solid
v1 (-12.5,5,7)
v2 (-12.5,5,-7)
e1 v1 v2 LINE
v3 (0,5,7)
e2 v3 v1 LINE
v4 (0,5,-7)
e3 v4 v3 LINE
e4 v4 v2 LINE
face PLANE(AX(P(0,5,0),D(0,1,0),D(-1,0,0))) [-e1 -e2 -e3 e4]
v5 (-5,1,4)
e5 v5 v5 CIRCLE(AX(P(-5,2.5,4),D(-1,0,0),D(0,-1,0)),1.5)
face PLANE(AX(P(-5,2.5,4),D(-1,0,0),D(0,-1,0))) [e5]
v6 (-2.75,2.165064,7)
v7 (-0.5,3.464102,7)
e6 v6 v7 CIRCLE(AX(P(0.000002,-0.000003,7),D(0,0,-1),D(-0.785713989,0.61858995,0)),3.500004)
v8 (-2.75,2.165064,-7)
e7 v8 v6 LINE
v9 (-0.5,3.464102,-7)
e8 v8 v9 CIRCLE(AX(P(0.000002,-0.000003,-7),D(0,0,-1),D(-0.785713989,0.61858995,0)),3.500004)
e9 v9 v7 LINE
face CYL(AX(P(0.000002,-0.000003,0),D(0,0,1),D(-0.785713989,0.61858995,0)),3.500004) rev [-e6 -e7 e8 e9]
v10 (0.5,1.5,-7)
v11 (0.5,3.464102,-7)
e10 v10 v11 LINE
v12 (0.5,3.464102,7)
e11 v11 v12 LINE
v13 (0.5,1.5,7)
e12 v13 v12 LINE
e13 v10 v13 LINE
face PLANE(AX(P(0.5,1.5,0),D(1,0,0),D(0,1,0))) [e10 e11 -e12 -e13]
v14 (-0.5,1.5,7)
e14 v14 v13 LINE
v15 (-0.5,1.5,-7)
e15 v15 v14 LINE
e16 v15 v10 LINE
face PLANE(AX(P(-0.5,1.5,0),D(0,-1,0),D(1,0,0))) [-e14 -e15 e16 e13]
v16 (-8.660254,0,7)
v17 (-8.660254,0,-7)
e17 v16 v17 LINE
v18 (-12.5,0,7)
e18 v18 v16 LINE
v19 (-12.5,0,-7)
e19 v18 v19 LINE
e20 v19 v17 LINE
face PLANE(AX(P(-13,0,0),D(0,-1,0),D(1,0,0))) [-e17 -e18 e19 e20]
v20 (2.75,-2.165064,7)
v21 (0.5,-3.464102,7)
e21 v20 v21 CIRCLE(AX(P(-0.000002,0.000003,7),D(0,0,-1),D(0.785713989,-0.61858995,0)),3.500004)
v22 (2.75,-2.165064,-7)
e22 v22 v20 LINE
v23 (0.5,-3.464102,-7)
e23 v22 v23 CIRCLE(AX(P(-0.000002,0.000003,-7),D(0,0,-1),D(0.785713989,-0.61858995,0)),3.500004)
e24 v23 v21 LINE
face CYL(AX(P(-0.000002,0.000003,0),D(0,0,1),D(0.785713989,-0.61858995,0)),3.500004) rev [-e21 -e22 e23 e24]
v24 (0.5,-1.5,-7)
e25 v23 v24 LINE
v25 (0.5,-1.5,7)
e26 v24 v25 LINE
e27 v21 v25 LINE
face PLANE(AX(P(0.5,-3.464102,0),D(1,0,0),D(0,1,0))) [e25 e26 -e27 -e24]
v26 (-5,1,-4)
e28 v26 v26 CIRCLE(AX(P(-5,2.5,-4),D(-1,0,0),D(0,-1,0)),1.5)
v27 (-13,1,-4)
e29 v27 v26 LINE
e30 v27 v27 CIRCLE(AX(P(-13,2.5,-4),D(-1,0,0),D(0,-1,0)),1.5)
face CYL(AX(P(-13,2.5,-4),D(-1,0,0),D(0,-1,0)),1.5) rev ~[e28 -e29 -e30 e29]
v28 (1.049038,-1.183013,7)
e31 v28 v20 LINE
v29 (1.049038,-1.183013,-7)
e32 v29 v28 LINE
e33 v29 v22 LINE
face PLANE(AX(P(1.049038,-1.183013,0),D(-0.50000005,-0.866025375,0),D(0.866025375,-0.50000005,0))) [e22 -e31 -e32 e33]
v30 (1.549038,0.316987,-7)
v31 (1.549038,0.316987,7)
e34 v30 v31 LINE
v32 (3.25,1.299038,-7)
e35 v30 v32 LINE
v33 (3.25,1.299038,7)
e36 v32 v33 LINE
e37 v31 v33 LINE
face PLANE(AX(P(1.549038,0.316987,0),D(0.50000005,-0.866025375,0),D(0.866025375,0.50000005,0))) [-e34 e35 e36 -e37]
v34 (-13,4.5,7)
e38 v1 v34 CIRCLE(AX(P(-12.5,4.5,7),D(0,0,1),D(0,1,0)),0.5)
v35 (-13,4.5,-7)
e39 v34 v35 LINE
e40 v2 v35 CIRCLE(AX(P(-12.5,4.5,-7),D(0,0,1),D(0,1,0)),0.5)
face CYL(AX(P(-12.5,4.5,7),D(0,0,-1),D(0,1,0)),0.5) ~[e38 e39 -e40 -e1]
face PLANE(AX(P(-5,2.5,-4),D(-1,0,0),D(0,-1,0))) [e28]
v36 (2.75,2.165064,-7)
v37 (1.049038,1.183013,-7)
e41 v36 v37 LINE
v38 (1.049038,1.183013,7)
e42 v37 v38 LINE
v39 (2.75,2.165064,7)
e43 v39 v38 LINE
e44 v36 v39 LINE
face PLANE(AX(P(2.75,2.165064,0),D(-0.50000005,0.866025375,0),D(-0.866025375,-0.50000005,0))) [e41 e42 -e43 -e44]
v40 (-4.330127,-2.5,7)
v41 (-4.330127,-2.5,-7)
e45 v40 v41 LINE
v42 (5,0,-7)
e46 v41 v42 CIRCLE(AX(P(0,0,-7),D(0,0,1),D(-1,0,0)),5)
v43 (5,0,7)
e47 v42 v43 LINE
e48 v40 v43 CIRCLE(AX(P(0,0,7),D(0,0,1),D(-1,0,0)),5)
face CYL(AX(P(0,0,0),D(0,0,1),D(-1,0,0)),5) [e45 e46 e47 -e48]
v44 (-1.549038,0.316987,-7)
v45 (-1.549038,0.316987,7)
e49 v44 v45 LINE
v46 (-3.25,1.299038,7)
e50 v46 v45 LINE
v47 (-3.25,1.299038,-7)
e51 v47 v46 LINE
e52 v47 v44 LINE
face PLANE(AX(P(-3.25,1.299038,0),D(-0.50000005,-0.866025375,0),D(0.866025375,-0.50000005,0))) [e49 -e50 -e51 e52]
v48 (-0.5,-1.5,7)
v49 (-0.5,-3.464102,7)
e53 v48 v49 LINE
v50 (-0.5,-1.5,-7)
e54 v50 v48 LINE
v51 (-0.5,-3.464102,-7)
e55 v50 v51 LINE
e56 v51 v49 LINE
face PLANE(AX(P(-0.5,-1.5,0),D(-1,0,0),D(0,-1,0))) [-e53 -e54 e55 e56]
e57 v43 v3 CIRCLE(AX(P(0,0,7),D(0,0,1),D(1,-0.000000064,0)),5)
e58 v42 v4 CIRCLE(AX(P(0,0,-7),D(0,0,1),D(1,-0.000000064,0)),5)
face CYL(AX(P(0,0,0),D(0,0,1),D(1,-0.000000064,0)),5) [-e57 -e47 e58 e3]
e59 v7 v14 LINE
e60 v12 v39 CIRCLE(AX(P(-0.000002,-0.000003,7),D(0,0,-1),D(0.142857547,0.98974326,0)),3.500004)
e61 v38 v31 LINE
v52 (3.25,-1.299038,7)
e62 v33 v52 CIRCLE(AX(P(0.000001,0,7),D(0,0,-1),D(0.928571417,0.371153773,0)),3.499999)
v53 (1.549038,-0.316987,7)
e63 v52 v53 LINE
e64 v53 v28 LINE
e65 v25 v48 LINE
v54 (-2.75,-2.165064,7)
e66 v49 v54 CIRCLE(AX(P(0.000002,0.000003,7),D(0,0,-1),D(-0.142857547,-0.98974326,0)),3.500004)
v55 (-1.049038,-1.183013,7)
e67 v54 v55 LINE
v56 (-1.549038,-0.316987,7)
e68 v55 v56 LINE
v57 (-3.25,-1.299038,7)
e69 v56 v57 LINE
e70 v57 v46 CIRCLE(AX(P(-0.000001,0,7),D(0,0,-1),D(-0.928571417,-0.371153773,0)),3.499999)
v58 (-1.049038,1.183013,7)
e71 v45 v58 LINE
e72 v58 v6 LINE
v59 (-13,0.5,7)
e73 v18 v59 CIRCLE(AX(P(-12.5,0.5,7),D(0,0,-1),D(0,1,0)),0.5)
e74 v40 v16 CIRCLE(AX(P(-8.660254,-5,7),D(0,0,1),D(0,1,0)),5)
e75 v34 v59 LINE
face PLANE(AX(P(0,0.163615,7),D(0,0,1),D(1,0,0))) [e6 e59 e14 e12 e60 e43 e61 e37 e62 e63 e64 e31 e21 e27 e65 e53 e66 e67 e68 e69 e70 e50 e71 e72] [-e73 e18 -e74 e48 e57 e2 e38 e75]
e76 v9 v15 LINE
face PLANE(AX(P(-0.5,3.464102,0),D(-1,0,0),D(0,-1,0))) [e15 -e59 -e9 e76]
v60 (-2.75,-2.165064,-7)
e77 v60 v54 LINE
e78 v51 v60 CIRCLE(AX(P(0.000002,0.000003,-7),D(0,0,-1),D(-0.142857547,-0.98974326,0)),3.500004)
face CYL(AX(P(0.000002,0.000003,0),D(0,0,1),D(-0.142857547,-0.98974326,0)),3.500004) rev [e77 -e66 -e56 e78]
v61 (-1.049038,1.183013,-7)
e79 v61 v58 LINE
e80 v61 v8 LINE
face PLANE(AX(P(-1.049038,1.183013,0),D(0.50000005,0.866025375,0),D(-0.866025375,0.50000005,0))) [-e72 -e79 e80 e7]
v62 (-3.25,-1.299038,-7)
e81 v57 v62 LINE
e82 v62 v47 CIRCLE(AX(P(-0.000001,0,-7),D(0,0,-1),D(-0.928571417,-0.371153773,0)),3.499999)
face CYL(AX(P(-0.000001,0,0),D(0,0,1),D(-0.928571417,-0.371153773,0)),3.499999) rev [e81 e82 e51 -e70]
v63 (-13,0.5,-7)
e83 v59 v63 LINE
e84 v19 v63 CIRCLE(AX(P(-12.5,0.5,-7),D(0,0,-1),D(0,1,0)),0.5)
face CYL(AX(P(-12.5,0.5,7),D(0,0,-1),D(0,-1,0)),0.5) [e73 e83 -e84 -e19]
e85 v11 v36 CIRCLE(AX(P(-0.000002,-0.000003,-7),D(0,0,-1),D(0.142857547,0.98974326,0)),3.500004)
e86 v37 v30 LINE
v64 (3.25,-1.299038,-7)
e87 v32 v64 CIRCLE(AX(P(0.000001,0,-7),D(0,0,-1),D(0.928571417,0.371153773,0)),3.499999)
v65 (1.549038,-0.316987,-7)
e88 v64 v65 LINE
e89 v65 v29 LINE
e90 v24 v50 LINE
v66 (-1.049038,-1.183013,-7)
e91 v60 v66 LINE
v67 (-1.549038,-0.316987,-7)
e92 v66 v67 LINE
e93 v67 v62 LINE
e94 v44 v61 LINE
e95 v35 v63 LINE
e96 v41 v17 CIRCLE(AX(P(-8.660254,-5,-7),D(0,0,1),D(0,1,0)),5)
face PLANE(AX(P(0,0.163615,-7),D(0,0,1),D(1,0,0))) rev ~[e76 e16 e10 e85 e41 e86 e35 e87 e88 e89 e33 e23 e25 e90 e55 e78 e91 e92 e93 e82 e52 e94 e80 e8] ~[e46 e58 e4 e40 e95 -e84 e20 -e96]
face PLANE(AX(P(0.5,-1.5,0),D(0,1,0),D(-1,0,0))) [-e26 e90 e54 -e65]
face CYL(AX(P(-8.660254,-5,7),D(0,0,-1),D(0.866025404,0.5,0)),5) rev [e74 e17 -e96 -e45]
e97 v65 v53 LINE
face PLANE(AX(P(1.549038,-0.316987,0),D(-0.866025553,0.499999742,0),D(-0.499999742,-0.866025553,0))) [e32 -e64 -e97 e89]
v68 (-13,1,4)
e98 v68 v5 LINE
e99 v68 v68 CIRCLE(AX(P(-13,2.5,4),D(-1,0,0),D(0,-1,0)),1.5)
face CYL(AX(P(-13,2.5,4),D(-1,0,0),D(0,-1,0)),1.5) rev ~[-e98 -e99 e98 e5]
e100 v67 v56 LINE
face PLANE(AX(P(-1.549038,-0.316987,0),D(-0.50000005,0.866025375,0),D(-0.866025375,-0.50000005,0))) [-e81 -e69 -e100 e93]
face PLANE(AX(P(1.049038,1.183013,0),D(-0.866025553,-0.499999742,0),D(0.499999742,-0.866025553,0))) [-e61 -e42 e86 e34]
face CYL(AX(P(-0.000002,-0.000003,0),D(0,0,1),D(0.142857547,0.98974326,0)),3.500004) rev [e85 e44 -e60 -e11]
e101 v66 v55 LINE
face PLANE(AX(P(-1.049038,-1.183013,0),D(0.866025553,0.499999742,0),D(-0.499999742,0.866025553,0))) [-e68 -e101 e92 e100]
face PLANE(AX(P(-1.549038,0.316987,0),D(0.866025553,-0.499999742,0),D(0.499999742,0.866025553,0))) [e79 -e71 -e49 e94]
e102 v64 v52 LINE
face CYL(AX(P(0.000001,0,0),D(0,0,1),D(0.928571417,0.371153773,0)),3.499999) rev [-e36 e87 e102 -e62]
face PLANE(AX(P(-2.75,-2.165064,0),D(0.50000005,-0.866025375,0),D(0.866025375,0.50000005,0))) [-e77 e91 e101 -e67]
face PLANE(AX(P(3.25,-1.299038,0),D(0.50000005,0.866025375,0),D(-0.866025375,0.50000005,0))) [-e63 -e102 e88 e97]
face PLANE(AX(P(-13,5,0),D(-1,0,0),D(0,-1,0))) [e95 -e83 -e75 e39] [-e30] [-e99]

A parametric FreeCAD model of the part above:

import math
import FreeCAD as App
import Part
import Sketcher
from FreeCAD import Vector
Q = App.Units.Quantity


def edges_at(feature, points):
    """Names of the edges that pass closest to the given points."""
    edges = feature.Shape.Edges
    near = lambda p: min(range(len(edges)), key=lambda i: edges[i].distToShape(Part.Vertex(*p))[0])
    return sorted({f"Edge{near(p) + 1}" for p in points})

doc = App.newDocument("Part")
body = doc.addObject("PartDesign::Body", "Body")

# Sketch on XY plane
sketch1 = doc.addObject("Sketcher::SketchObject", "Sketch")
body.addObject(sketch1)
sketch1.AttachmentSupport = (doc.XY_Plane, [""])
sketch1.MapMode = "FlatFace"
sketch1.addGeometry(Part.ArcOfCircle(Part.Circle(Vector(0, 0, 0), Vector(0, 0, 1), 5), math.radians(180), math.radians(360)), False)
sketch1.addGeometry(Part.ArcOfCircle(Part.Circle(Vector(0, 0, 0), Vector(0, 0, 1), 5), math.radians(-0.000004), math.radians(90.000004)), False)
sketch1.addGeometry(Part.LineSegment(Vector(0, 5, 0), Vector(-13, 5, 0)), False)
sketch1.addGeometry(Part.LineSegment(Vector(-13, 5, 0), Vector(-13, 0, 0)), False)
sketch1.addGeometry(Part.LineSegment(Vector(-13, 0, 0), Vector(-5, 0, 0)), False)
sketch1.addGeometry(Part.ArcOfCircle(Part.Circle(Vector(-0.000001, 0, 0), Vector(0, 0, 1), 3.499999), math.radians(158.213209), math.radians(201.786791)), False)
sketch1.addGeometry(Part.LineSegment(Vector(-3.25, 1.299038, 0), Vector(-1.549038, 0.316987, 0)), False)
sketch1.addGeometry(Part.LineSegment(Vector(-1.549038, 0.316987, 0), Vector(-1.049038, 1.183013, 0)), False)
sketch1.addGeometry(Part.LineSegment(Vector(-1.049038, 1.183013, 0), Vector(-2.75, 2.165064, 0)), False)
sketch1.addGeometry(Part.ArcOfCircle(Part.Circle(Vector(0.000002, -0.000003, 0), Vector(0, 0, 1), 3.500004), math.radians(98.213234), math.radians(141.786762)), False)
sketch1.addGeometry(Part.LineSegment(Vector(-0.5, 3.464102, 0), Vector(-0.5, 1.5, 0)), False)
sketch1.addGeometry(Part.LineSegment(Vector(-0.5, 1.5, 0), Vector(0.5, 1.5, 0)), False)
sketch1.addGeometry(Part.LineSegment(Vector(0.5, 1.5, 0), Vector(0.5, 3.464102, 0)), False)
sketch1.addGeometry(Part.ArcOfCircle(Part.Circle(Vector(-0.000002, -0.000003, 0), Vector(0, 0, 1), 3.500004), math.radians(38.213238), math.radians(81.786766)), False)
sketch1.addGeometry(Part.LineSegment(Vector(2.75, 2.165064, 0), Vector(1.049038, 1.183013, 0)), False)
sketch1.addGeometry(Part.LineSegment(Vector(1.049038, 1.183013, 0), Vector(1.549038, 0.316987, 0)), False)
sketch1.addGeometry(Part.LineSegment(Vector(1.549038, 0.316987, 0), Vector(3.25, 1.299038, 0)), False)
sketch1.addGeometry(Part.ArcOfCircle(Part.Circle(Vector(0.000001, 0, 0), Vector(0, 0, 1), 3.499999), math.radians(-21.786791), math.radians(21.786791)), False)
sketch1.addGeometry(Part.LineSegment(Vector(3.25, -1.299038, 0), Vector(1.549038, -0.316987, 0)), False)
sketch1.addGeometry(Part.LineSegment(Vector(1.549038, -0.316987, 0), Vector(1.049038, -1.183013, 0)), False)
sketch1.addGeometry(Part.LineSegment(Vector(1.049038, -1.183013, 0), Vector(2.75, -2.165064, 0)), False)
sketch1.addGeometry(Part.ArcOfCircle(Part.Circle(Vector(-0.000002, 0.000003, 0), Vector(0, 0, 1), 3.500004), math.radians(-81.786766), math.radians(-38.213238)), False)
sketch1.addGeometry(Part.LineSegment(Vector(0.5, -3.464102, 0), Vector(0.5, -1.5, 0)), False)
sketch1.addGeometry(Part.LineSegment(Vector(0.5, -1.5, 0), Vector(-0.5, -1.5, 0)), False)
sketch1.addGeometry(Part.LineSegment(Vector(-0.5, -1.5, 0), Vector(-0.5, -3.464102, 0)), False)
sketch1.addGeometry(Part.ArcOfCircle(Part.Circle(Vector(0.000002, 0.000003, 0), Vector(0, 0, 1), 3.500004), math.radians(-141.786762), math.radians(-98.213234)), False)
sketch1.addGeometry(Part.LineSegment(Vector(-2.75, -2.165064, 0), Vector(-1.049038, -1.183013, 0)), False)
sketch1.addGeometry(Part.LineSegment(Vector(-1.049038, -1.183013, 0), Vector(-1.549038, -0.316987, 0)), False)
sketch1.addGeometry(Part.LineSegment(Vector(-1.549038, -0.316987, 0), Vector(-3.25, -1.299038, 0)), False)
sketch1.addConstraint(Sketcher.Constraint("Tangent", 0, 2, 1, 1))
sketch1.addConstraint(Sketcher.Constraint("Tangent", 1, 2, 2, 1))
sketch1.addConstraint(Sketcher.Constraint("Coincident", 2, 2, 3, 1))
sketch1.addConstraint(Sketcher.Constraint("Coincident", 3, 2, 4, 1))
sketch1.addConstraint(Sketcher.Constraint("Coincident", 4, 2, 0, 1))
sketch1.addConstraint(Sketcher.Constraint("Coincident", 5, 1, 6, 1))
sketch1.addConstraint(Sketcher.Constraint("Coincident", 6, 2, 7, 1))
sketch1.addConstraint(Sketcher.Constraint("Coincident", 7, 2, 8, 1))
sketch1.addConstraint(Sketcher.Constraint("Coincident", 8, 2, 9, 2))
sketch1.addConstraint(Sketcher.Constraint("Coincident", 9, 1, 10, 1))
sketch1.addConstraint(Sketcher.Constraint("Coincident", 10, 2, 11, 1))
sketch1.addConstraint(Sketcher.Constraint("Coincident", 11, 2, 12, 1))
sketch1.addConstraint(Sketcher.Constraint("Coincident", 12, 2, 13, 2))
sketch1.addConstraint(Sketcher.Constraint("Coincident", 13, 1, 14, 1))
sketch1.addConstraint(Sketcher.Constraint("Coincident", 14, 2, 15, 1))
sketch1.addConstraint(Sketcher.Constraint("Coincident", 15, 2, 16, 1))
sketch1.addConstraint(Sketcher.Constraint("Coincident", 16, 2, 17, 2))
sketch1.addConstraint(Sketcher.Constraint("Coincident", 17, 1, 18, 1))
sketch1.addConstraint(Sketcher.Constraint("Coincident", 18, 2, 19, 1))
sketch1.addConstraint(Sketcher.Constraint("Coincident", 19, 2, 20, 1))
sketch1.addConstraint(Sketcher.Constraint("Coincident", 20, 2, 21, 2))
sketch1.addConstraint(Sketcher.Constraint("Coincident", 21, 1, 22, 1))
sketch1.addConstraint(Sketcher.Constraint("Coincident", 22, 2, 23, 1))
sketch1.addConstraint(Sketcher.Constraint("Coincident", 23, 2, 24, 1))
sketch1.addConstraint(Sketcher.Constraint("Coincident", 24, 2, 25, 2))
sketch1.addConstraint(Sketcher.Constraint("Coincident", 25, 1, 26, 1))
sketch1.addConstraint(Sketcher.Constraint("Coincident", 26, 2, 27, 1))
sketch1.addConstraint(Sketcher.Constraint("Coincident", 27, 2, 28, 1))
sketch1.addConstraint(Sketcher.Constraint("Coincident", 28, 2, 5, 2))
sketch1.addConstraint(Sketcher.Constraint("Horizontal", 2))
sketch1.addConstraint(Sketcher.Constraint("Vertical", 3))
sketch1.addConstraint(Sketcher.Constraint("Horizontal", 4))
sketch1.addConstraint(Sketcher.Constraint("Vertical", 10))
sketch1.addConstraint(Sketcher.Constraint("Horizontal", 11))
sketch1.addConstraint(Sketcher.Constraint("Vertical", 12))
sketch1.addConstraint(Sketcher.Constraint("Vertical", 22))
sketch1.addConstraint(Sketcher.Constraint("Horizontal", 23))
sketch1.addConstraint(Sketcher.Constraint("Vertical", 24))
sketch1.addConstraint(Sketcher.Constraint("Coincident", 0, 3, -1, 1))
sketch1.addConstraint(Sketcher.Constraint("Coincident", 5, 3, -1, 1))
sketch1.addConstraint(Sketcher.Constraint("Coincident", 9, 3, -1, 1))
sketch1.addConstraint(Sketcher.Constraint("Coincident", 13, 3, -1, 1))
sketch1.addConstraint(Sketcher.Constraint("Coincident", 17, 3, -1, 1))
sketch1.addConstraint(Sketcher.Constraint("Coincident", 21, 3, -1, 1))
sketch1.addConstraint(Sketcher.Constraint("Coincident", 25, 3, -1, 1))
sketch1.addConstraint(Sketcher.Constraint("Equal", 0, 1))
sketch1.addConstraint(Sketcher.Constraint("Equal", 9, 13))
sketch1.addConstraint(Sketcher.Constraint("Equal", 5, 17))
sketch1.addConstraint(Sketcher.Constraint("Equal", 13, 21))
sketch1.addConstraint(Sketcher.Constraint("Equal", 21, 25))
sketch1.addConstraint(Sketcher.Constraint("Symmetric", 6, 2, 18, 2, -1, 1))
sketch1.addConstraint(Sketcher.Constraint("Symmetric", 7, 2, 19, 2, -1, 1))
sketch1.addConstraint(Sketcher.Constraint("Symmetric", 10, 2, 22, 2, -1, 1))
sketch1.addConstraint(Sketcher.Constraint("Symmetric", 14, 2, 26, 2, -1, 1))
sketch1.addConstraint(Sketcher.Constraint("Symmetric", 15, 2, 27, 2, -1, 1))
sketch1.addConstraint(Sketcher.Constraint("Symmetric", 7, 2, 14, 2, -2))
sketch1.addConstraint(Sketcher.Constraint("Symmetric", 6, 2, 15, 2, -2))
sketch1.addConstraint(Sketcher.Constraint("PointOnObject", 0, 2, -1))
sketch1.addConstraint(Sketcher.Constraint("PointOnObject", 3, 2, -1))
sketch1.addConstraint(Sketcher.Constraint("Perpendicular", 6, 7))
sketch1.addConstraint(Sketcher.Constraint("Perpendicular", 7, 8))
sketch1.addConstraint(Sketcher.Constraint("Perpendicular", 14, 15))
sketch1.addConstraint(Sketcher.Constraint("Perpendicular", 15, 16))
sketch1.addConstraint(Sketcher.Constraint("Parallel", 8, 18))
sketch1.addConstraint(Sketcher.Constraint("Perpendicular", 19, 20))
sketch1.addConstraint(Sketcher.Constraint("Parallel", 16, 26))
sketch1.addConstraint(Sketcher.Constraint("Perpendicular", 27, 28))
sketch1.addConstraint(Sketcher.Constraint("Horizontal", 9, 1, 12, 2))
sketch1.addConstraint(Sketcher.Constraint("Horizontal", 21, 1, 24, 2))
sketch1.addConstraint(Sketcher.Constraint("Equal", 6, 8))
sketch1.addConstraint(Sketcher.Constraint("Radius", 0, 5.0))
sketch1.addConstraint(Sketcher.Constraint("Radius", 5, 3.499999))
sketch1.addConstraint(Sketcher.Constraint("DistanceX", 2, 2, 2, 1, 13.0))
sketch1.addConstraint(Sketcher.Constraint("DistanceX", 11, 1, 11, 2, 1.0))
sketch1.addConstraint(Sketcher.Constraint("Angle", 6, Q("-30.000003 deg")))
sketch1.addConstraint(Sketcher.Constraint("Distance", 7, 1.000001))
sketch1.addConstraint(Sketcher.Constraint("DistanceY", -1, 1, 10, 2, 1.5))
sketch1.addConstraint(Sketcher.Constraint("DistanceY", 19, 2, 15, 2, 1.5))
sketch1.addConstraint(Sketcher.Constraint("DistanceX", 5, 1, -1, 1, 3.25))
pad1 = doc.addObject("PartDesign::Pad", "Pad")
body.addObject(pad1)
pad1.Profile = sketch1
pad1.Length = 14
pad1.Midplane = True
doc.recompute()

fillet = doc.addObject("PartDesign::Fillet", "Fillet")
body.addObject(fillet)
fillet.Base = (pad1, edges_at(pad1, [(-5, 0, 0)]))
fillet.Radius = 5
doc.recompute()

fillet2 = doc.addObject("PartDesign::Fillet", "Fillet001")
body.addObject(fillet2)
fillet2.Base = (fillet, edges_at(fillet, [(-13, 5, 0), (-13, 0, 0)]))
fillet2.Radius = 0.5

# Sketch on YZ plane
sketch2 = doc.addObject("Sketcher::SketchObject", "Sketch001")
body.addObject(sketch2)
sketch2.AttachmentSupport = (doc.YZ_Plane, [""])
sketch2.MapMode = "FlatFace"
sketch2.AttachmentOffset = App.Placement(Vector(0, 0, -13), App.Rotation())
sketch2.addGeometry(Part.Circle(Vector(2.5, 4, 0), Vector(0, 0, 1), 1.5), False)
sketch2.addGeometry(Part.Circle(Vector(2.5, -4, 0), Vector(0, 0, 1), 1.5), False)
sketch2.addConstraint(Sketcher.Constraint("Equal", 0, 1))
sketch2.addConstraint(Sketcher.Constraint("Symmetric", 0, 3, 1, 3, -1))
sketch2.addConstraint(Sketcher.Constraint("Diameter", 0, 3.0))
sketch2.addConstraint(Sketcher.Constraint("DistanceY", -1, 1, 0, 3, 4.0))
sketch2.addConstraint(Sketcher.Constraint("DistanceX", -1, 1, 0, 3, 2.5))
pocket1 = doc.addObject("PartDesign::Pocket", "Pocket")
body.addObject(pocket1)
pocket1.Profile = sketch2
pocket1.Length = 8
pocket1.Reversed = True

doc.recompute()
